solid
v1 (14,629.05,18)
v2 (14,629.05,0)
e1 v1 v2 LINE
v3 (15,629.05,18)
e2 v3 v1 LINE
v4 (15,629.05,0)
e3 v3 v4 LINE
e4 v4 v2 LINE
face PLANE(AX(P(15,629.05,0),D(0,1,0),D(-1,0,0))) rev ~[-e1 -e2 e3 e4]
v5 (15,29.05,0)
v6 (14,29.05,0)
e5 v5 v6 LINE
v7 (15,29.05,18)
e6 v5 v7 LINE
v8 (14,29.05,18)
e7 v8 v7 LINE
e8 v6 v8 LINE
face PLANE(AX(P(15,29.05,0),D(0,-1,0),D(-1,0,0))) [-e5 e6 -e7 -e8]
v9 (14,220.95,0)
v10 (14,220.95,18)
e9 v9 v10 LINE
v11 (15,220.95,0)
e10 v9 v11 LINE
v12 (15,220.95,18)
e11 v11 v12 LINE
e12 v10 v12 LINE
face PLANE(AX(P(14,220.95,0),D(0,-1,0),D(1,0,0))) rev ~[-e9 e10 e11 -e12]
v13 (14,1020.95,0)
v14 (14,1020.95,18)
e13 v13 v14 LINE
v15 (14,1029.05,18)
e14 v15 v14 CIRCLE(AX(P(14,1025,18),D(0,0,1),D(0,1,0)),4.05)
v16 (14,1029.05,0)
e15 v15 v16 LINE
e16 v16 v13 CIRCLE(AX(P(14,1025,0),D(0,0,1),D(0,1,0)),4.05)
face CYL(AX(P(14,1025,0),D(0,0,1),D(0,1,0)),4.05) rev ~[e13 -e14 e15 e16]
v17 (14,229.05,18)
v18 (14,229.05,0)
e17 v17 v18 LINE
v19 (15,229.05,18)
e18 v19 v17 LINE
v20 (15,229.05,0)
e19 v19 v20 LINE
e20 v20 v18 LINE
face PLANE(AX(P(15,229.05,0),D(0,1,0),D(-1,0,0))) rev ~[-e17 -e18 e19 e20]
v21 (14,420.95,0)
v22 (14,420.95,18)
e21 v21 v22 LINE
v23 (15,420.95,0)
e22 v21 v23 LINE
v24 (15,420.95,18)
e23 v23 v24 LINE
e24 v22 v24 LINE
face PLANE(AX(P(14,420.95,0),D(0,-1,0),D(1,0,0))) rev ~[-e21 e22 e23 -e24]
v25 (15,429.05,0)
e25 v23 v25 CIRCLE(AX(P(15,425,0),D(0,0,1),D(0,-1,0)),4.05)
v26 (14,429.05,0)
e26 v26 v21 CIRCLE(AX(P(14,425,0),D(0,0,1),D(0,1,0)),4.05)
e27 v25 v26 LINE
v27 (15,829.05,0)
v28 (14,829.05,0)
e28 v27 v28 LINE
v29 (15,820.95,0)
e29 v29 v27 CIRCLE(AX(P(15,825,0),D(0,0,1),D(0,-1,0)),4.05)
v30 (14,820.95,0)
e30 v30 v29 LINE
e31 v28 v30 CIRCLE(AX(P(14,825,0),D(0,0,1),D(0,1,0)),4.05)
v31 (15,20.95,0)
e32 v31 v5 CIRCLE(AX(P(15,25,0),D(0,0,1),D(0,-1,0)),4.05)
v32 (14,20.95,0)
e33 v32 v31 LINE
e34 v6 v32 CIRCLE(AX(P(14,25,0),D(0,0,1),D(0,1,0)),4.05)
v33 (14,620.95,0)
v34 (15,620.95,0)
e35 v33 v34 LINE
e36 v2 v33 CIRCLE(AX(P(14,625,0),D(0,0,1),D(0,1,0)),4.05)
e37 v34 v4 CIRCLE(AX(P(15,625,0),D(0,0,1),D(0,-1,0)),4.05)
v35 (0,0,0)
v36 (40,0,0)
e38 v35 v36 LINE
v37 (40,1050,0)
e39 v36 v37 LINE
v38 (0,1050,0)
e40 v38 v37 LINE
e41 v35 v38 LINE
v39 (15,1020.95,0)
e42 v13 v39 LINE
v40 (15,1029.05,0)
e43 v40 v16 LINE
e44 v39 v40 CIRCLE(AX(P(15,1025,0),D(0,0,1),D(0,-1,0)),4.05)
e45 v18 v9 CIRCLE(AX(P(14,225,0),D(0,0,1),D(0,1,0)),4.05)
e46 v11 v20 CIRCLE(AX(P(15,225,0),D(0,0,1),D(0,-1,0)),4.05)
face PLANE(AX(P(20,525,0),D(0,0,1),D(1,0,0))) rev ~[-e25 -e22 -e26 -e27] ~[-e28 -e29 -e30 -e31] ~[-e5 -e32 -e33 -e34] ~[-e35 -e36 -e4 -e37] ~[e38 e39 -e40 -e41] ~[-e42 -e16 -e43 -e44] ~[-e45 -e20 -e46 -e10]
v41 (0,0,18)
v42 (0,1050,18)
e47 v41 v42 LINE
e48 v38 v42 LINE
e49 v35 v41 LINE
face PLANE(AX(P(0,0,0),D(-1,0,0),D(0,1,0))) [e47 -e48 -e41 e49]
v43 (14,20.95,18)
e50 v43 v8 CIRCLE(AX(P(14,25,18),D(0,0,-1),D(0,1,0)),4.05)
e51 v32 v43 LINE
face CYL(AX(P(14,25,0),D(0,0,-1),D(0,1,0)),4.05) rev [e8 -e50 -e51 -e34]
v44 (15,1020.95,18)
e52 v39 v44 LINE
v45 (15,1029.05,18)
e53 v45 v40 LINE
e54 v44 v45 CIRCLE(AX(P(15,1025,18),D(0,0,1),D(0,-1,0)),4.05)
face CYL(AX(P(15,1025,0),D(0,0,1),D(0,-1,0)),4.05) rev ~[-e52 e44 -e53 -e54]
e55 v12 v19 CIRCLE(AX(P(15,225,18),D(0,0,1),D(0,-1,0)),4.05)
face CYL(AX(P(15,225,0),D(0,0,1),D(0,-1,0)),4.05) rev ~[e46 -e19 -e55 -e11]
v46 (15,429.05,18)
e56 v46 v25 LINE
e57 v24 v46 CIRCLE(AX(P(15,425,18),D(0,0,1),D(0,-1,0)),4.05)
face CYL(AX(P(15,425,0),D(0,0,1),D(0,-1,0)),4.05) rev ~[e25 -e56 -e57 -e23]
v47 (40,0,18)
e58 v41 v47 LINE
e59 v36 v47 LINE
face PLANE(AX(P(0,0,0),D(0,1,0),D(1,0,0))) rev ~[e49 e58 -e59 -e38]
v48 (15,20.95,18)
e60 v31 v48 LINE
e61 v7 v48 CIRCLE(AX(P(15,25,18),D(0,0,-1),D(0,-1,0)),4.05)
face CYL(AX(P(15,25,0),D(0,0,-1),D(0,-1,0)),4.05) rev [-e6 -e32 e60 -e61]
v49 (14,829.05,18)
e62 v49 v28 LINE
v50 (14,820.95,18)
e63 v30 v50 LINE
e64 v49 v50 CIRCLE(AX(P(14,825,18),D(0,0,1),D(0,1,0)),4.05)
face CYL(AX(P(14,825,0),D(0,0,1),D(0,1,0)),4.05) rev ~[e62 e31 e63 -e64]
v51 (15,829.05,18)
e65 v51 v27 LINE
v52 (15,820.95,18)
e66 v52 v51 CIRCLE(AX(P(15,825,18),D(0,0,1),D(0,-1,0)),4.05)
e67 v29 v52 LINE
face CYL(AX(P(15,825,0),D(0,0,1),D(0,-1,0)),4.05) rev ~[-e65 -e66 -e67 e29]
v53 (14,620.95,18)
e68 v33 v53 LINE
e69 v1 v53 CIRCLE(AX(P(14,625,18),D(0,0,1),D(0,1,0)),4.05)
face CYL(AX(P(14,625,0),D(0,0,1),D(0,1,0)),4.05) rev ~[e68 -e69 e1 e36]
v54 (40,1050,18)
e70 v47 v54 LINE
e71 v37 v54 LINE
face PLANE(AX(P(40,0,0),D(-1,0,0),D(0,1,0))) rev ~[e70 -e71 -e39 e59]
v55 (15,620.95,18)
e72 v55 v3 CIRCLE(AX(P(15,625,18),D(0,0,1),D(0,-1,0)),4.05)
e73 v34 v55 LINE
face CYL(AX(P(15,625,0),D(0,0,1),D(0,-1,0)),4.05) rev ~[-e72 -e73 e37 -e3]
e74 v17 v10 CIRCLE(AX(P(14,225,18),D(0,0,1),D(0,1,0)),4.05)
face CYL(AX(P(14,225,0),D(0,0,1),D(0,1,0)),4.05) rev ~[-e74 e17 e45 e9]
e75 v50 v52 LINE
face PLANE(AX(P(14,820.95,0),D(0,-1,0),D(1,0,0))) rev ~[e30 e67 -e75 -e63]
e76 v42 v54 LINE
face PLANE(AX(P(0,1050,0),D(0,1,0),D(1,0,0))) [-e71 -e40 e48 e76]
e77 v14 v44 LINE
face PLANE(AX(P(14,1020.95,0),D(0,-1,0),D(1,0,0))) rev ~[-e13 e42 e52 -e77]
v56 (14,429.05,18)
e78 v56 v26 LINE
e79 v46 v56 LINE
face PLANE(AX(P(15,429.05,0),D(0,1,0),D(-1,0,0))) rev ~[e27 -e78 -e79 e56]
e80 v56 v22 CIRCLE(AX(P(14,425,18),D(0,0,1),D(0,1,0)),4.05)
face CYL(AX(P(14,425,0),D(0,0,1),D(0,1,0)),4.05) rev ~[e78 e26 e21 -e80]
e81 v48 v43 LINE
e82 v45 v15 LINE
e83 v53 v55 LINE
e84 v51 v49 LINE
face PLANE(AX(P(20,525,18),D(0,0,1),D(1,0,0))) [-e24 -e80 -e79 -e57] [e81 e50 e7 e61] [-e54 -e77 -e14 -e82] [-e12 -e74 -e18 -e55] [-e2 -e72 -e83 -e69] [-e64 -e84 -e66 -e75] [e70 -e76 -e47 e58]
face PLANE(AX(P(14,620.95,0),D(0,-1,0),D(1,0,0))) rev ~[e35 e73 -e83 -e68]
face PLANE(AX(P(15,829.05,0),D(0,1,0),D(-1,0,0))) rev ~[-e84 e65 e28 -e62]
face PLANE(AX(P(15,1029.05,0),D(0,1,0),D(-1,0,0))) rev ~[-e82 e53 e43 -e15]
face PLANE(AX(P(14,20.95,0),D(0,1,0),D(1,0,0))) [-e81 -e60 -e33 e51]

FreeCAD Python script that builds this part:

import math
import FreeCAD as App
import Part
import Sketcher


def add_polygon(sketch, points):
    """Adds a closed chain of lines whose ends are joined by coincident constraints."""
    first, n = sketch.GeometryCount, len(points)
    for a, b in zip(points, points[1:] + points[:1]):
        sketch.addGeometry(Part.LineSegment(App.Vector(*a, 0), App.Vector(*b, 0)), False)
    for i in range(n):
        sketch.addConstraint(Sketcher.Constraint("Coincident", first + i, 2, first + (i + 1) % n, 1))

doc = App.newDocument("Part")
body = doc.addObject("PartDesign::Body", "Body")

# Sketch on XY plane
sketch1 = doc.addObject("Sketcher::SketchObject", "Sketch")
body.addObject(sketch1)
sketch1.AttachmentSupport = (doc.XY_Plane, [""])
sketch1.MapMode = "FlatFace"
add_polygon(sketch1, [(0, 1050), (0, 0), (40, 0), (40, 1050)])  # lines 0-3
sketch1.addConstraint(Sketcher.Constraint("Vertical", 0))
sketch1.addConstraint(Sketcher.Constraint("Horizontal", 1))
sketch1.addConstraint(Sketcher.Constraint("Vertical", 2))
sketch1.addConstraint(Sketcher.Constraint("Horizontal", 3))
sketch1.addConstraint(Sketcher.Constraint("Coincident", 0, 2, -1, 1))
sketch1.addConstraint(Sketcher.Constraint("DistanceX", 1, 1, 1, 2, 40.0))
sketch1.addConstraint(Sketcher.Constraint("DistanceY", 0, 2, 0, 1, 1050.0))
pad1 = doc.addObject("PartDesign::Pad", "Pad")
body.addObject(pad1)
pad1.Profile = sketch1
pad1.Length = 18

# Sketch on XY plane
sketch2 = doc.addObject("Sketcher::SketchObject", "Sketch001")
body.addObject(sketch2)
sketch2.AttachmentSupport = (doc.XY_Plane, [""])
sketch2.MapMode = "FlatFace"
sketch2.addGeometry(Part.ArcOfCircle(Part.Circle(App.Vector(14, 25, 0), App.Vector(0, 0, 1), 4), math.radians(90), math.radians(270)), False)
sketch2.addGeometry(Part.LineSegment(App.Vector(14, 20.9, 0), App.Vector(15, 20.9, 0)), False)
sketch2.addGeometry(Part.ArcOfCircle(Part.Circle(App.Vector(15, 25, 0), App.Vector(0, 0, 1), 4), math.radians(-90), math.radians(90)), False)
sketch2.addGeometry(Part.LineSegment(App.Vector(15, 29.1, 0), App.Vector(14, 29.1, 0)), False)
sketch2.addConstraint(Sketcher.Constraint("Tangent", 0, 2, 1, 1))
sketch2.addConstraint(Sketcher.Constraint("Tangent", 1, 2, 2, 1))
sketch2.addConstraint(Sketcher.Constraint("Tangent", 2, 2, 3, 1))
sketch2.addConstraint(Sketcher.Constraint("Tangent", 3, 2, 0, 1))
sketch2.addConstraint(Sketcher.Constraint("Horizontal", 1))
sketch2.addConstraint(Sketcher.Constraint("Horizontal", 3))
sketch2.addConstraint(Sketcher.Constraint("DistanceX", 1, 1, 1, 2, 1.0))
sketch2.addConstraint(Sketcher.Constraint("Radius", 0, 4.05))
sketch2.addConstraint(Sketcher.Constraint("DistanceX", -1, 1, 0, 3, 14.0))
sketch2.addConstraint(Sketcher.Constraint("DistanceY", -1, 1, 0, 3, 25.0))
pocket1 = doc.addObject("PartDesign::Pocket", "Pocket")
body.addObject(pocket1)
pocket1.Profile = sketch2
pocket1.Type = "ThroughAll"
pocket1.Midplane = True
doc.recompute()

linearpattern = doc.addObject("PartDesign::LinearPattern", "LinearPattern")
body.addObject(linearpattern)
linearpattern.Originals = [pocket1]
linearpattern.Direction = (doc.Y_Axis, [""])
linearpattern.Mode = "offset"
linearpattern.Offset = 200
linearpattern.Occurrences = 10
body.Tip = linearpattern

doc.recompute()
